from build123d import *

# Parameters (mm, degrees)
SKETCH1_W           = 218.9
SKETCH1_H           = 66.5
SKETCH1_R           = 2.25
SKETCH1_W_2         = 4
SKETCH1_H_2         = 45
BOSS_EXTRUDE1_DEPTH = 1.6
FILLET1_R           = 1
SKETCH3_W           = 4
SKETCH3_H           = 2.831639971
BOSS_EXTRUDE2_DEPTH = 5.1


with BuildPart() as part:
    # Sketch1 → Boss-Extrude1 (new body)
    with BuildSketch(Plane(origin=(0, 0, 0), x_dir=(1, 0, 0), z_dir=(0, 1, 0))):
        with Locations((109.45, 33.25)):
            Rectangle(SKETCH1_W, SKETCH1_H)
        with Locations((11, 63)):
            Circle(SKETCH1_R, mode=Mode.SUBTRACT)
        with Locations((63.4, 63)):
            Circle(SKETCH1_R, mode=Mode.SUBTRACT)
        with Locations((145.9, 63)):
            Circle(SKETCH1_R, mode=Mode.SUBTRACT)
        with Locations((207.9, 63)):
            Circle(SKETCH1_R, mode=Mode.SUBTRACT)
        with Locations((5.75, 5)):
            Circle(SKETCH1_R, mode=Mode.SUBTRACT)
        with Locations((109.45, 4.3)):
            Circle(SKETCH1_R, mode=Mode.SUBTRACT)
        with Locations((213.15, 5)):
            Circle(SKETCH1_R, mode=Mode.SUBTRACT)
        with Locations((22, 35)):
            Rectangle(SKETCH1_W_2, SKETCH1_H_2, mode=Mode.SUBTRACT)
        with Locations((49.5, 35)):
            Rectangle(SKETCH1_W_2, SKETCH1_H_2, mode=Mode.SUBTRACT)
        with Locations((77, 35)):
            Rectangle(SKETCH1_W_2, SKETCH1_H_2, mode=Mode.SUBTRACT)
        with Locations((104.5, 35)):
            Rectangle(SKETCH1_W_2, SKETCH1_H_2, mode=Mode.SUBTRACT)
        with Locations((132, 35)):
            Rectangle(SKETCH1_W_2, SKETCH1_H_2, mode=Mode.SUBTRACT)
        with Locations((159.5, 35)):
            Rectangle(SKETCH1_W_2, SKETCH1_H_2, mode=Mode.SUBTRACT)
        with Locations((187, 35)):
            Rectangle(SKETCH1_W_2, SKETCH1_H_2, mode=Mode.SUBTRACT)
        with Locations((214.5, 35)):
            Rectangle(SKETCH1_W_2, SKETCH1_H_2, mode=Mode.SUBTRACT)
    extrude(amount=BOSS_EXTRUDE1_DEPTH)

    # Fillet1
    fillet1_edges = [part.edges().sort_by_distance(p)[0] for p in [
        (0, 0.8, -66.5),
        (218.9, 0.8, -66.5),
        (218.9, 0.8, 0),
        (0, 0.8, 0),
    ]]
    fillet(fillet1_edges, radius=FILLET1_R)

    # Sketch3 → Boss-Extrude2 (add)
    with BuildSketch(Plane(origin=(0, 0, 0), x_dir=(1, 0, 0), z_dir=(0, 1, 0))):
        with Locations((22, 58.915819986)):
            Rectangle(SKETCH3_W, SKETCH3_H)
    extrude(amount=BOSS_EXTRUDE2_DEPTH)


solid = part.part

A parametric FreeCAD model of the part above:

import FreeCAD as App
import Part
import Sketcher

V = App.Vector


def edges_at(feature, points):
    """Names of the edges that pass closest to the given points."""
    edges = feature.Shape.Edges
    near = lambda p: min(range(len(edges)), key=lambda i: edges[i].distToShape(Part.Vertex(*p))[0])
    return sorted({f"Edge{near(p) + 1}" for p in points})

doc = App.newDocument("Part")
body = doc.addObject("PartDesign::Body", "Body")

# Sketch on XZ plane
sketch1 = doc.addObject("Sketcher::SketchObject", "Sketch")
body.addObject(sketch1)
sketch1.AttachmentSupport = (doc.XZ_Plane, [""])
sketch1.MapMode = "FlatFace"
sketch1.addGeometry(Part.LineSegment(V(0, -66.5, 0), V(0, 0, 0)), False)
sketch1.addGeometry(Part.LineSegment(V(0, 0, 0), V(218.9, 0, 0)), False)
sketch1.addGeometry(Part.LineSegment(V(218.9, 0, 0), V(218.9, -66.5, 0)), False)
sketch1.addGeometry(Part.LineSegment(V(218.9, -66.5, 0), V(0, -66.5, 0)), False)
sketch1.addGeometry(Part.Circle(V(5.75, -5, 0), V(0, 0, 1), 2.25), False)
sketch1.addGeometry(Part.Circle(V(109.45, -4.3, 0), V(0, 0, 1), 2.25), False)
sketch1.addGeometry(Part.Circle(V(213.15, -5, 0), V(0, 0, 1), 2.25), False)
sketch1.addGeometry(Part.LineSegment(V(24, -12.5, 0), V(20, -12.5, 0)), False)
sketch1.addGeometry(Part.LineSegment(V(20, -12.5, 0), V(20, -57.5, 0)), False)
sketch1.addGeometry(Part.LineSegment(V(20, -57.5, 0), V(24, -57.5, 0)), False)
sketch1.addGeometry(Part.LineSegment(V(24, -57.5, 0), V(24, -12.5, 0)), False)
sketch1.addGeometry(Part.LineSegment(V(51.5, -12.5, 0), V(47.5, -12.5, 0)), False)
sketch1.addGeometry(Part.LineSegment(V(47.5, -12.5, 0), V(47.5, -57.5, 0)), False)
sketch1.addGeometry(Part.LineSegment(V(47.5, -57.5, 0), V(51.5, -57.5, 0)), False)
sketch1.addGeometry(Part.LineSegment(V(51.5, -57.5, 0), V(51.5, -12.5, 0)), False)
sketch1.addGeometry(Part.LineSegment(V(79, -12.5, 0), V(75, -12.5, 0)), False)
sketch1.addGeometry(Part.LineSegment(V(75, -12.5, 0), V(75, -57.5, 0)), False)
sketch1.addGeometry(Part.LineSegment(V(75, -57.5, 0), V(79, -57.5, 0)), False)
sketch1.addGeometry(Part.LineSegment(V(79, -57.5, 0), V(79, -12.5, 0)), False)
sketch1.addGeometry(Part.LineSegment(V(106.5, -12.5, 0), V(102.5, -12.5, 0)), False)
sketch1.addGeometry(Part.LineSegment(V(102.5, -12.5, 0), V(102.5, -57.5, 0)), False)
sketch1.addGeometry(Part.LineSegment(V(102.5, -57.5, 0), V(106.5, -57.5, 0)), False)
sketch1.addGeometry(Part.LineSegment(V(106.5, -57.5, 0), V(106.5, -12.5, 0)), False)
sketch1.addGeometry(Part.Circle(V(11, -63, 0), V(0, 0, 1), 2.25), False)
sketch1.addGeometry(Part.Circle(V(63.4, -63, 0), V(0, 0, 1), 2.25), False)
sketch1.addGeometry(Part.LineSegment(V(134, -12.5, 0), V(130, -12.5, 0)), False)
sketch1.addGeometry(Part.LineSegment(V(130, -12.5, 0), V(130, -57.5, 0)), False)
sketch1.addGeometry(Part.LineSegment(V(130, -57.5, 0), V(134, -57.5, 0)), False)
sketch1.addGeometry(Part.LineSegment(V(134, -57.5, 0), V(134, -12.5, 0)), False)
sketch1.addGeometry(Part.LineSegment(V(161.5, -12.5, 0), V(157.5, -12.5, 0)), False)
sketch1.addGeometry(Part.LineSegment(V(157.5, -12.5, 0), V(157.5, -57.5, 0)), False)
sketch1.addGeometry(Part.LineSegment(V(157.5, -57.5, 0), V(161.5, -57.5, 0)), False)
sketch1.addGeometry(Part.LineSegment(V(161.5, -57.5, 0), V(161.5, -12.5, 0)), False)
sketch1.addGeometry(Part.LineSegment(V(189, -12.5, 0), V(185, -12.5, 0)), False)
sketch1.addGeometry(Part.LineSegment(V(185, -12.5, 0), V(185, -57.5, 0)), False)
sketch1.addGeometry(Part.LineSegment(V(185, -57.5, 0), V(189, -57.5, 0)), False)
sketch1.addGeometry(Part.LineSegment(V(189, -57.5, 0), V(189, -12.5, 0)), False)
sketch1.addGeometry(Part.LineSegment(V(216.5, -12.5, 0), V(212.5, -12.5, 0)), False)
sketch1.addGeometry(Part.LineSegment(V(212.5, -12.5, 0), V(212.5, -57.5, 0)), False)
sketch1.addGeometry(Part.LineSegment(V(212.5, -57.5, 0), V(216.5, -57.5, 0)), False)
sketch1.addGeometry(Part.LineSegment(V(216.5, -57.5, 0), V(216.5, -12.5, 0)), False)
sketch1.addGeometry(Part.Circle(V(145.9, -63, 0), V(0, 0, 1), 2.25), False)
sketch1.addGeometry(Part.Circle(V(207.9, -63, 0), V(0, 0, 1), 2.25), False)
sketch1.addConstraint(Sketcher.Constraint("Coincident", 0, 2, 1, 1))
sketch1.addConstraint(Sketcher.Constraint("Coincident", 1, 2, 2, 1))
sketch1.addConstraint(Sketcher.Constraint("Coincident", 2, 2, 3, 1))
sketch1.addConstraint(Sketcher.Constraint("Coincident", 3, 2, 0, 1))
sketch1.addConstraint(Sketcher.Constraint("Coincident", 7, 2, 8, 1))
sketch1.addConstraint(Sketcher.Constraint("Coincident", 8, 2, 9, 1))
sketch1.addConstraint(Sketcher.Constraint("Coincident", 9, 2, 10, 1))
sketch1.addConstraint(Sketcher.Constraint("Coincident", 10, 2, 7, 1))
sketch1.addConstraint(Sketcher.Constraint("Coincident", 11, 2, 12, 1))
sketch1.addConstraint(Sketcher.Constraint("Coincident", 12, 2, 13, 1))
sketch1.addConstraint(Sketcher.Constraint("Coincident", 13, 2, 14, 1))
sketch1.addConstraint(Sketcher.Constraint("Coincident", 14, 2, 11, 1))
sketch1.addConstraint(Sketcher.Constraint("Coincident", 15, 2, 16, 1))
sketch1.addConstraint(Sketcher.Constraint("Coincident", 16, 2, 17, 1))
sketch1.addConstraint(Sketcher.Constraint("Coincident", 17, 2, 18, 1))
sketch1.addConstraint(Sketcher.Constraint("Coincident", 18, 2, 15, 1))
sketch1.addConstraint(Sketcher.Constraint("Coincident", 19, 2, 20, 1))
sketch1.addConstraint(Sketcher.Constraint("Coincident", 20, 2, 21, 1))
sketch1.addConstraint(Sketcher.Constraint("Coincident", 21, 2, 22, 1))
sketch1.addConstraint(Sketcher.Constraint("Coincident", 22, 2, 19, 1))
sketch1.addConstraint(Sketcher.Constraint("Coincident", 25, 2, 26, 1))
sketch1.addConstraint(Sketcher.Constraint("Coincident", 26, 2, 27, 1))
sketch1.addConstraint(Sketcher.Constraint("Coincident", 27, 2, 28, 1))
sketch1.addConstraint(Sketcher.Constraint("Coincident", 28, 2, 25, 1))
sketch1.addConstraint(Sketcher.Constraint("Coincident", 29, 2, 30, 1))
sketch1.addConstraint(Sketcher.Constraint("Coincident", 30, 2, 31, 1))
sketch1.addConstraint(Sketcher.Constraint("Coincident", 31, 2, 32, 1))
sketch1.addConstraint(Sketcher.Constraint("Coincident", 32, 2, 29, 1))
sketch1.addConstraint(Sketcher.Constraint("Coincident", 33, 2, 34, 1))
sketch1.addConstraint(Sketcher.Constraint("Coincident", 34, 2, 35, 1))
sketch1.addConstraint(Sketcher.Constraint("Coincident", 35, 2, 36, 1))
sketch1.addConstraint(Sketcher.Constraint("Coincident", 36, 2, 33, 1))
sketch1.addConstraint(Sketcher.Constraint("Coincident", 37, 2, 38, 1))
sketch1.addConstraint(Sketcher.Constraint("Coincident", 38, 2, 39, 1))
sketch1.addConstraint(Sketcher.Constraint("Coincident", 39, 2, 40, 1))
sketch1.addConstraint(Sketcher.Constraint("Coincident", 40, 2, 37, 1))
sketch1.addConstraint(Sketcher.Constraint("Vertical", 0))
sketch1.addConstraint(Sketcher.Constraint("Horizontal", 1))
sketch1.addConstraint(Sketcher.Constraint("Vertical", 2))
sketch1.addConstraint(Sketcher.Constraint("Horizontal", 3))
sketch1.addConstraint(Sketcher.Constraint("Horizontal", 7))
sketch1.addConstraint(Sketcher.Constraint("Vertical", 8))
sketch1.addConstraint(Sketcher.Constraint("Horizontal", 9))
sketch1.addConstraint(Sketcher.Constraint("Vertical", 10))
sketch1.addConstraint(Sketcher.Constraint("Horizontal", 11))
sketch1.addConstraint(Sketcher.Constraint("Vertical", 12))
sketch1.addConstraint(Sketcher.Constraint("Horizontal", 13))
sketch1.addConstraint(Sketcher.Constraint("Vertical", 14))
sketch1.addConstraint(Sketcher.Constraint("Horizontal", 15))
sketch1.addConstraint(Sketcher.Constraint("Vertical", 16))
sketch1.addConstraint(Sketcher.Constraint("Horizontal", 17))
sketch1.addConstraint(Sketcher.Constraint("Vertical", 18))
sketch1.addConstraint(Sketcher.Constraint("Horizontal", 19))
sketch1.addConstraint(Sketcher.Constraint("Vertical", 20))
sketch1.addConstraint(Sketcher.Constraint("Horizontal", 21))
sketch1.addConstraint(Sketcher.Constraint("Vertical", 22))
sketch1.addConstraint(Sketcher.Constraint("Horizontal", 25))
sketch1.addConstraint(Sketcher.Constraint("Vertical", 26))
sketch1.addConstraint(Sketcher.Constraint("Horizontal", 27))
sketch1.addConstraint(Sketcher.Constraint("Vertical", 28))
sketch1.addConstraint(Sketcher.Constraint("Horizontal", 29))
sketch1.addConstraint(Sketcher.Constraint("Vertical", 30))
sketch1.addConstraint(Sketcher.Constraint("Horizontal", 31))
sketch1.addConstraint(Sketcher.Constraint("Vertical", 32))
sketch1.addConstraint(Sketcher.Constraint("Horizontal", 33))
sketch1.addConstraint(Sketcher.Constraint("Vertical", 34))
sketch1.addConstraint(Sketcher.Constraint("Horizontal", 35))
sketch1.addConstraint(Sketcher.Constraint("Vertical", 36))
sketch1.addConstraint(Sketcher.Constraint("Horizontal", 37))
sketch1.addConstraint(Sketcher.Constraint("Vertical", 38))
sketch1.addConstraint(Sketcher.Constraint("Horizontal", 39))
sketch1.addConstraint(Sketcher.Constraint("Vertical", 40))
sketch1.addConstraint(Sketcher.Constraint("Coincident", 0, 2, -1, 1))
sketch1.addConstraint(Sketcher.Constraint("Equal", 4, 5))
sketch1.addConstraint(Sketcher.Constraint("Equal", 5, 6))
sketch1.addConstraint(Sketcher.Constraint("Equal", 6, 23))
sketch1.addConstraint(Sketcher.Constraint("Equal", 23, 24))
sketch1.addConstraint(Sketcher.Constraint("Equal", 24, 41))
sketch1.addConstraint(Sketcher.Constraint("Equal", 41, 42))
sketch1.addConstraint(Sketcher.Constraint("Horizontal", 4, 3, 6, 3))
sketch1.addConstraint(Sketcher.Constraint("Horizontal", 23, 3, 24, 3))
sketch1.addConstraint(Sketcher.Constraint("Horizontal", 24, 3, 41, 3))
sketch1.addConstraint(Sketcher.Constraint("Horizontal", 41, 3, 42, 3))
sketch1.addConstraint(Sketcher.Constraint("Horizontal", 10, 2, 11, 2))
sketch1.addConstraint(Sketcher.Constraint("Horizontal", 9, 2, 12, 2))
sketch1.addConstraint(Sketcher.Constraint("Horizontal", 14, 2, 15, 2))
sketch1.addConstraint(Sketcher.Constraint("Horizontal", 13, 2, 16, 2))
sketch1.addConstraint(Sketcher.Constraint("Horizontal", 18, 2, 19, 2))
sketch1.addConstraint(Sketcher.Constraint("Horizontal", 17, 2, 20, 2))
sketch1.addConstraint(Sketcher.Constraint("Horizontal", 22, 2, 25, 2))
sketch1.addConstraint(Sketcher.Constraint("Horizontal", 21, 2, 26, 2))
sketch1.addConstraint(Sketcher.Constraint("Horizontal", 28, 2, 29, 2))
sketch1.addConstraint(Sketcher.Constraint("Horizontal", 27, 2, 30, 2))
sketch1.addConstraint(Sketcher.Constraint("Horizontal", 32, 2, 33, 2))
sketch1.addConstraint(Sketcher.Constraint("Horizontal", 31, 2, 34, 2))
sketch1.addConstraint(Sketcher.Constraint("Horizontal", 36, 2, 37, 2))
sketch1.addConstraint(Sketcher.Constraint("Horizontal", 35, 2, 38, 2))
sketch1.addConstraint(Sketcher.Constraint("Equal", 9, 11))
sketch1.addConstraint(Sketcher.Constraint("Equal", 13, 15))
sketch1.addConstraint(Sketcher.Constraint("Equal", 17, 19))
sketch1.addConstraint(Sketcher.Constraint("Equal", 21, 25))
sketch1.addConstraint(Sketcher.Constraint("Equal", 27, 29))
sketch1.addConstraint(Sketcher.Constraint("Equal", 31, 33))
sketch1.addConstraint(Sketcher.Constraint("Equal", 35, 37))
sketch1.addConstraint(Sketcher.Constraint("Diameter", 4, 4.5))
sketch1.addConstraint(Sketcher.Constraint("DistanceX", 7, 2, 7, 1, 4.0))
sketch1.addConstraint(Sketcher.Constraint("DistanceY", 8, 2, 8, 1, 45.0))
sketch1.addConstraint(Sketcher.Constraint("DistanceX", 1, 1, 1, 2, 218.9))
sketch1.addConstraint(Sketcher.Constraint("DistanceY", 0, 1, 0, 2, 66.5))
sketch1.addConstraint(Sketcher.Constraint("DistanceY", 4, 3, -1, 1, 5.0))
sketch1.addConstraint(Sketcher.Constraint("DistanceX", -1, 1, 23, 3, 11.0))
sketch1.addConstraint(Sketcher.Constraint("DistanceY", 23, 3, -1, 1, 63.0))
sketch1.addConstraint(Sketcher.Constraint("DistanceX", -1, 1, 7, 2, 20.0))
sketch1.addConstraint(Sketcher.Constraint("DistanceX", -1, 1, 15, 2, 75.0))
sketch1.addConstraint(Sketcher.Constraint("DistanceX", -1, 1, 25, 2, 130.0))
sketch1.addConstraint(Sketcher.Constraint("DistanceX", -1, 1, 33, 2, 185.0))
sketch1.addConstraint(Sketcher.Constraint("DistanceX", 41, 3, 42, 3, 62.0))
sketch1.addConstraint(Sketcher.Constraint("DistanceX", 42, 3, 1, 2, 11.0))
sketch1.addConstraint(Sketcher.Constraint("DistanceY", 3, 2, 7, 2, 54.0))
sketch1.addConstraint(Sketcher.Constraint("DistanceX", 14, 2, 19, 2, 51.0))
sketch1.addConstraint(Sketcher.Constraint("DistanceX", 22, 2, 29, 2, 51.0))
sketch1.addConstraint(Sketcher.Constraint("DistanceY", 5, 3, -1, 1, 4.3))
sketch1.addConstraint(Sketcher.Constraint("DistanceX", -1, 1, 24, 3, 63.4))
sketch1.addConstraint(Sketcher.Constraint("DistanceX", -1, 1, 11, 2, 47.5))
sketch1.addConstraint(Sketcher.Constraint("DistanceX", -1, 1, 37, 2, 212.5))
sketch1.addConstraint(Sketcher.Constraint("DistanceX", 4, 3, 5, 3, 103.7))
sketch1.addConstraint(Sketcher.Constraint("DistanceX", 5, 3, 6, 3, 103.7))
sketch1.addConstraint(Sketcher.Constraint("DistanceX", -1, 1, 4, 3, 5.75))
pad1 = doc.addObject("PartDesign::Pad", "Pad")
body.addObject(pad1)
pad1.Profile = sketch1
pad1.Length = 1.6
pad1.Reversed = True
doc.recompute()

fillet = doc.addObject("PartDesign::Fillet", "Fillet")
body.addObject(fillet)
fillet.Base = (pad1, edges_at(pad1, [
    (0, 0.8, -66.5),
    (218.9, 0.8, -66.5),
    (218.9, 0.8, 0),
    (0, 0.8, 0),
]))
fillet.Radius = 1

# Sketch on XZ plane
sketch2 = doc.addObject("Sketcher::SketchObject", "Sketch001")
body.addObject(sketch2)
sketch2.AttachmentSupport = (doc.XZ_Plane, [""])
sketch2.MapMode = "FlatFace"
sketch2.addGeometry(Part.LineSegment(V(20, -60.33164, 0), V(20, -57.5, 0)), False)
sketch2.addGeometry(Part.LineSegment(V(20, -57.5, 0), V(24, -57.5, 0)), False)
sketch2.addGeometry(Part.LineSegment(V(24, -57.5, 0), V(24, -60.33164, 0)), False)
sketch2.addGeometry(Part.LineSegment(V(24, -60.33164, 0), V(20, -60.33164, 0)), False)
sketch2.addConstraint(Sketcher.Constraint("Coincident", 0, 2, 1, 1))
sketch2.addConstraint(Sketcher.Constraint("Coincident", 1, 2, 2, 1))
sketch2.addConstraint(Sketcher.Constraint("Coincident", 2, 2, 3, 1))
sketch2.addConstraint(Sketcher.Constraint("Coincident", 3, 2, 0, 1))
sketch2.addConstraint(Sketcher.Constraint("Vertical", 0))
sketch2.addConstraint(Sketcher.Constraint("Horizontal", 1))
sketch2.addConstraint(Sketcher.Constraint("Vertical", 2))
sketch2.addConstraint(Sketcher.Constraint("Horizontal", 3))
sketch2.addConstraint(Sketcher.Constraint("DistanceX", 1, 1, 1, 2, 4.0))
sketch2.addConstraint(Sketcher.Constraint("DistanceX", -1, 1, 0, 2, 20.0))
sketch2.addConstraint(Sketcher.Constraint("DistanceY", 0, 2, -1, 1, 57.5))
sketch2.addConstraint(Sketcher.Constraint("DistanceY", 0, 1, 0, 2, 2.83164))
pad2 = doc.addObject("PartDesign::Pad", "Pad001")
body.addObject(pad2)
pad2.Profile = sketch2
pad2.Length = 5.1
pad2.Reversed = True

doc.recompute()
